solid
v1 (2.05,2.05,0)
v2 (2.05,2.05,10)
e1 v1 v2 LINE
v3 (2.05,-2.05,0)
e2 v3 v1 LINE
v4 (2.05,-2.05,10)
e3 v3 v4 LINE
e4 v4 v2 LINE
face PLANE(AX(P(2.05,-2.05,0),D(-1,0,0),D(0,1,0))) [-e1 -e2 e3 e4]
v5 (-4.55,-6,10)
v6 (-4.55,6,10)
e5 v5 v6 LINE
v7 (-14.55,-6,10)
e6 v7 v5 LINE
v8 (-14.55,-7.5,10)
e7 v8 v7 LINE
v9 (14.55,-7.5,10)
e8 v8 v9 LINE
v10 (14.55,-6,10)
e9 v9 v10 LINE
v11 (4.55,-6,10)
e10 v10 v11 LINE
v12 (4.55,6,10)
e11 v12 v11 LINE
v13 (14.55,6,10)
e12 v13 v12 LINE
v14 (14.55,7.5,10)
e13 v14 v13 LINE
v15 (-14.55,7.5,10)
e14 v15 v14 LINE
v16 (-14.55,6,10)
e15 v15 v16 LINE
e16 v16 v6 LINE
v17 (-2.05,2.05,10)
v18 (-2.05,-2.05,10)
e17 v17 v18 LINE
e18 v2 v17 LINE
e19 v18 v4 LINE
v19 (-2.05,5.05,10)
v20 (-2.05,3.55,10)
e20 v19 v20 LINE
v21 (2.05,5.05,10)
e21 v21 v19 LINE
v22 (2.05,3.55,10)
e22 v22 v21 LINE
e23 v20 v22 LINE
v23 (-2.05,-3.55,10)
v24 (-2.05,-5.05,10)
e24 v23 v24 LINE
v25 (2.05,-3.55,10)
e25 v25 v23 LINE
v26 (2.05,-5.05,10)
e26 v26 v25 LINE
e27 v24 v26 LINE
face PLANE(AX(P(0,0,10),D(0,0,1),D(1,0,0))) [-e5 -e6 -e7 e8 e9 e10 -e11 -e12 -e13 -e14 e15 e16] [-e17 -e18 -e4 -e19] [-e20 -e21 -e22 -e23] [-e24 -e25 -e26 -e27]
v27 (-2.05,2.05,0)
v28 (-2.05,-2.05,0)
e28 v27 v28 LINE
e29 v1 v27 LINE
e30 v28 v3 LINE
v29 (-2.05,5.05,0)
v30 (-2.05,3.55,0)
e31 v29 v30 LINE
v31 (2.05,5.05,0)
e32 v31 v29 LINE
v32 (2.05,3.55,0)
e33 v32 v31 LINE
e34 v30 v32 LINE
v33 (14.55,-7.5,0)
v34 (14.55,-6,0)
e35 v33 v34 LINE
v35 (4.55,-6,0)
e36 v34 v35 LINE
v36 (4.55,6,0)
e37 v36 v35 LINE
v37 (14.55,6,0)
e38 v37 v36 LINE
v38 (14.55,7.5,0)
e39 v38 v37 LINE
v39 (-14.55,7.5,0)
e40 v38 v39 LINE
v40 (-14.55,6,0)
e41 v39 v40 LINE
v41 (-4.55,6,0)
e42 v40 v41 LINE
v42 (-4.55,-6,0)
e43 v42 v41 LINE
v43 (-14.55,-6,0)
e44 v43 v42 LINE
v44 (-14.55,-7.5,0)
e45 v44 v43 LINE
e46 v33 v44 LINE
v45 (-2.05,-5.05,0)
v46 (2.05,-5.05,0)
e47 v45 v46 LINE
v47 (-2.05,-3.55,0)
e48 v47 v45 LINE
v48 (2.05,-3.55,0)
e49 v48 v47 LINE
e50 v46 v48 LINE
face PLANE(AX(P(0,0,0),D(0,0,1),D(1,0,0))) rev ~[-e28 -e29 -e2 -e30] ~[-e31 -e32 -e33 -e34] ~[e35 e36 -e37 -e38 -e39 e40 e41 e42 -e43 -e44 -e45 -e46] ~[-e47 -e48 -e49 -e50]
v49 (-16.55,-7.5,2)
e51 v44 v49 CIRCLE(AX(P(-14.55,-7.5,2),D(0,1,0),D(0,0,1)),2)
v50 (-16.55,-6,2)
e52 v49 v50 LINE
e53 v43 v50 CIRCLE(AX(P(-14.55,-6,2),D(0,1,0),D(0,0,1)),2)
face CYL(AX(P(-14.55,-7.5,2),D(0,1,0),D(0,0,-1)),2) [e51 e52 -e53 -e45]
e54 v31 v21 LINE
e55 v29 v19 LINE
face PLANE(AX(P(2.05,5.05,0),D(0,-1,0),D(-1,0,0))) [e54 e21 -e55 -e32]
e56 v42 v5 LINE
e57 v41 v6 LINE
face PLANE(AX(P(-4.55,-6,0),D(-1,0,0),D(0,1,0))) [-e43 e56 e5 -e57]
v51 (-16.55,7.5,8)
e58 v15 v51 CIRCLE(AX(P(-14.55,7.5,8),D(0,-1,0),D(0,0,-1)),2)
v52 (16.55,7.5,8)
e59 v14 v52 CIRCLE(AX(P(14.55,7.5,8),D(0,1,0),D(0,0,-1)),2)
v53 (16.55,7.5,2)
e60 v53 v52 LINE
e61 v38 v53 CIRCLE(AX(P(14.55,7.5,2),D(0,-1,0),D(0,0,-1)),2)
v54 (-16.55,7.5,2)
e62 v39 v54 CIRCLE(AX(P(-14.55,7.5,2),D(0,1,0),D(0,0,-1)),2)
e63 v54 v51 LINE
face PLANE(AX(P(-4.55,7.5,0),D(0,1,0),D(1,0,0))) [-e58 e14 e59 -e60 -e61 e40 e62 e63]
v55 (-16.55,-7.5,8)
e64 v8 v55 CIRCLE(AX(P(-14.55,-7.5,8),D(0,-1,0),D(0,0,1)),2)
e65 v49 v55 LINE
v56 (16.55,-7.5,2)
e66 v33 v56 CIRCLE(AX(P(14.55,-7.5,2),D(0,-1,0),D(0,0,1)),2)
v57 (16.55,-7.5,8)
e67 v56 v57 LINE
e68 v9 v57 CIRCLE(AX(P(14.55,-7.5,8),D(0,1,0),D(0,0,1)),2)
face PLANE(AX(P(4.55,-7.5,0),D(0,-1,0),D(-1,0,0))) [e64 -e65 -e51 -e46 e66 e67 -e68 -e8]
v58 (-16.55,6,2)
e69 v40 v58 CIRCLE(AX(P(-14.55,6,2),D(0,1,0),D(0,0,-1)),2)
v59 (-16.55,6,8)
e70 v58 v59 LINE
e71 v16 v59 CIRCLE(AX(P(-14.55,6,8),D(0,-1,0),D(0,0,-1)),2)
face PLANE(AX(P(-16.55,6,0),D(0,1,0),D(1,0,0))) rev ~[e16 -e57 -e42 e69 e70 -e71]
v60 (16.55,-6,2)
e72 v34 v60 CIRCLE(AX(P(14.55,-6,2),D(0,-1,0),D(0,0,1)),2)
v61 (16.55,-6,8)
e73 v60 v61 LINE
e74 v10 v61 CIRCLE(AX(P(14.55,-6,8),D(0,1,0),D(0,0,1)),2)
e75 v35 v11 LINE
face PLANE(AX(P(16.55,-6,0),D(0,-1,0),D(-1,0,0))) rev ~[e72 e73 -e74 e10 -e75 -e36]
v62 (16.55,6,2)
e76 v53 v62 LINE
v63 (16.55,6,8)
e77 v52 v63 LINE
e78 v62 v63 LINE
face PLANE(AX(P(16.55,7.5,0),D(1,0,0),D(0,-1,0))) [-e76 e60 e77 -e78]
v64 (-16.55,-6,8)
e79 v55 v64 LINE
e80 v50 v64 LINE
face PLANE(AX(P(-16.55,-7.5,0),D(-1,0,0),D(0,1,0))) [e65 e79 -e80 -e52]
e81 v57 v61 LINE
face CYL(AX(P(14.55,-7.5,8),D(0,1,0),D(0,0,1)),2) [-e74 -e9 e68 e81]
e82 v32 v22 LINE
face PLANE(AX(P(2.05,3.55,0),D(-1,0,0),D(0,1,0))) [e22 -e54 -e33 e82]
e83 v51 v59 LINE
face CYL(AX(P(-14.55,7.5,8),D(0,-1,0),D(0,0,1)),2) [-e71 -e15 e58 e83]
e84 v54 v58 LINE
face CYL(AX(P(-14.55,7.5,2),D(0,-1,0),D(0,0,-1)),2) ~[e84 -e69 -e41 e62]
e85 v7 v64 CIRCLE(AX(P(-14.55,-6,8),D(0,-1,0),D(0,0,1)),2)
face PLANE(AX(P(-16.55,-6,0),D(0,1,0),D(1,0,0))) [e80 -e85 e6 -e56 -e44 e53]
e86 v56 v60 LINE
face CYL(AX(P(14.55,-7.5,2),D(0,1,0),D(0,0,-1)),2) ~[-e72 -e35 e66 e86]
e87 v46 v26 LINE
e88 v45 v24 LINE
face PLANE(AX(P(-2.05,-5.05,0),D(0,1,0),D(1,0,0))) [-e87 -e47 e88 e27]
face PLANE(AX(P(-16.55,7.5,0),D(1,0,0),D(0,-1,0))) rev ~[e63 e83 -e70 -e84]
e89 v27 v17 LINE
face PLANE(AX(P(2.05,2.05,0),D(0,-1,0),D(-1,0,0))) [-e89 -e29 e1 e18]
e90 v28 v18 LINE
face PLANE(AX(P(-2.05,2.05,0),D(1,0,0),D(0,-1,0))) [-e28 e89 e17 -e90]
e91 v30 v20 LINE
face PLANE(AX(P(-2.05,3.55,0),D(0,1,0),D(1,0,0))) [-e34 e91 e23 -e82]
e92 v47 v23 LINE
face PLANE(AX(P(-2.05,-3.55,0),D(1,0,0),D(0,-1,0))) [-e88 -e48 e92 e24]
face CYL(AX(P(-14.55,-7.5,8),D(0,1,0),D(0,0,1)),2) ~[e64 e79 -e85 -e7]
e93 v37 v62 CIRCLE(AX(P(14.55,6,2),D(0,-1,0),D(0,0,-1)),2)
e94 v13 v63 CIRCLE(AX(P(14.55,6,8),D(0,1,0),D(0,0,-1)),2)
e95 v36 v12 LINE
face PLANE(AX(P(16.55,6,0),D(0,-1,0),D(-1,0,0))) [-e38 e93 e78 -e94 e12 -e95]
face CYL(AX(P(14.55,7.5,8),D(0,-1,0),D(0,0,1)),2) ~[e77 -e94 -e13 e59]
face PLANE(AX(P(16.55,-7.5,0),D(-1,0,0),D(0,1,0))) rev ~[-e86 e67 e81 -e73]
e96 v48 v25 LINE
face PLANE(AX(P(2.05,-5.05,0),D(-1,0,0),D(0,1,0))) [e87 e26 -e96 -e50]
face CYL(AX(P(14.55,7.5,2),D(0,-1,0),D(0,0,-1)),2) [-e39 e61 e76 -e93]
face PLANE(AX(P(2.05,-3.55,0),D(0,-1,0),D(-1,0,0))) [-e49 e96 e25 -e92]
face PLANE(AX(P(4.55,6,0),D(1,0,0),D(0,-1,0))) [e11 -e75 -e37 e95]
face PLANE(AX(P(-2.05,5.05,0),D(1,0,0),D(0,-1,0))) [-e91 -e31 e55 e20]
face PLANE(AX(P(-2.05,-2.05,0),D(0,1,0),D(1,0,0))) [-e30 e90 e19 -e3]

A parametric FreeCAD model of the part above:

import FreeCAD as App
import Part
import Sketcher

V = App.Vector


def edges_at(feature, points):
    """Names of the edges that pass closest to the given points."""
    edges = feature.Shape.Edges
    near = lambda p: min(range(len(edges)), key=lambda i: edges[i].distToShape(Part.Vertex(*p))[0])
    return sorted({f"Edge{near(p) + 1}" for p in points})


def add_polygon(sketch, points):
    """Adds a closed chain of lines whose ends are joined by coincident constraints."""
    first, n = sketch.GeometryCount, len(points)
    for a, b in zip(points, points[1:] + points[:1]):
        sketch.addGeometry(Part.LineSegment(App.Vector(*a, 0), App.Vector(*b, 0)), False)
    for i in range(n):
        sketch.addConstraint(Sketcher.Constraint("Coincident", first + i, 2, first + (i + 1) % n, 1))

doc = App.newDocument("Part")
body = doc.addObject("PartDesign::Body", "Body")

# Sketch on XY plane
sketch1 = body.newObject("Sketcher::SketchObject", "Sketch")
sketch1.AttachmentSupport = (doc.getObject("XY_Plane"), [""])
sketch1.MapMode = "FlatFace"
add_polygon(sketch1, [(-16.6, 7.5), (-16.6, 6), (-4.5, 6), (-4.5, -6), (-16.6, -6), (-16.6, -7.5), (16.6, -7.5), (16.6, -6), (4.5, -6), (4.5, 6), (16.6, 6), (16.6, 7.5)])  # lines 0-11
add_polygon(sketch1, [(2, -2), (-2, -2), (-2, 2), (2, 2)])  # lines 12-15
sketch1.addConstraint(Sketcher.Constraint("Vertical", 0))
sketch1.addConstraint(Sketcher.Constraint("Horizontal", 1))
sketch1.addConstraint(Sketcher.Constraint("Vertical", 2))
sketch1.addConstraint(Sketcher.Constraint("Horizontal", 3))
sketch1.addConstraint(Sketcher.Constraint("Vertical", 4))
sketch1.addConstraint(Sketcher.Constraint("Horizontal", 5))
sketch1.addConstraint(Sketcher.Constraint("Vertical", 6))
sketch1.addConstraint(Sketcher.Constraint("Horizontal", 7))
sketch1.addConstraint(Sketcher.Constraint("Vertical", 8))
sketch1.addConstraint(Sketcher.Constraint("Horizontal", 9))
sketch1.addConstraint(Sketcher.Constraint("Vertical", 10))
sketch1.addConstraint(Sketcher.Constraint("Horizontal", 11))
sketch1.addConstraint(Sketcher.Constraint("Horizontal", 12))
sketch1.addConstraint(Sketcher.Constraint("Vertical", 13))
sketch1.addConstraint(Sketcher.Constraint("Horizontal", 14))
sketch1.addConstraint(Sketcher.Constraint("Vertical", 15))
sketch1.addConstraint(Sketcher.Constraint("Symmetric", 0, 2, 6, 2, -1, 1))
sketch1.addConstraint(Sketcher.Constraint("Symmetric", 2, 2, 8, 2, -1, 1))
sketch1.addConstraint(Sketcher.Constraint("Symmetric", 4, 2, 10, 2, -1, 1))
sketch1.addConstraint(Sketcher.Constraint("Symmetric", 12, 2, 14, 2, -1, 1))
sketch1.addConstraint(Sketcher.Constraint("Symmetric", 3, 2, 6, 2, -2))
sketch1.addConstraint(Sketcher.Constraint("Equal", 9, 2))
sketch1.addConstraint(Sketcher.Constraint("Equal", 14, 13))
sketch1.addConstraint(Sketcher.Constraint("DistanceX", 1, 1, 1, 2, 12.0))
sketch1.addConstraint(Sketcher.Constraint("DistanceX", 12, 2, 12, 1, 4.1))
sketch1.addConstraint(Sketcher.Constraint("DistanceY", 0, 2, 0, 1, 1.5))
sketch1.addConstraint(Sketcher.Constraint("DistanceX", 2, 2, 7, 2, 9.1))
pad1 = body.newObject("PartDesign::Pad", "Pad")
pad1.Profile = sketch1
pad1.Length = 10
doc.recompute()

fillet = body.newObject("PartDesign::Fillet", "Fillet")
fillet.Base = (pad1, edges_at(pad1, [
    (-16.55, 6.75, 10),
    (-16.55, -6.75, 10),
    (16.55, -6.75, 10),
    (16.55, 6.75, 10),
    (16.55, 6.75, 0),
    (-16.55, 6.75, 0),
    (-16.55, -6.75, 0),
    (16.55, -6.75, 0),
]))
fillet.Radius = 2

# Sketch on XY plane
sketch2 = body.newObject("Sketcher::SketchObject", "Sketch001")
sketch2.AttachmentSupport = (doc.getObject("XY_Plane"), [""])
sketch2.MapMode = "FlatFace"
add_polygon(sketch2, [(-2, 5), (2, 5), (2, 3.5), (-2, 3.5)])  # lines 0-3
add_polygon(sketch2, [(-2, -3.5), (2, -3.5), (2, -5), (-2, -5)])  # lines 4-7
sketch2.addConstraint(Sketcher.Constraint("Horizontal", 0))
sketch2.addConstraint(Sketcher.Constraint("Vertical", 1))
sketch2.addConstraint(Sketcher.Constraint("Horizontal", 2))
sketch2.addConstraint(Sketcher.Constraint("Vertical", 3))
sketch2.addConstraint(Sketcher.Constraint("Horizontal", 4))
sketch2.addConstraint(Sketcher.Constraint("Vertical", 5))
sketch2.addConstraint(Sketcher.Constraint("Horizontal", 6))
sketch2.addConstraint(Sketcher.Constraint("Vertical", 7))
sketch2.addConstraint(Sketcher.Constraint("Symmetric", 2, 2, 4, 2, -1, 1))
sketch2.addConstraint(Sketcher.Constraint("Symmetric", 0, 2, 6, 2, -1, 1))
sketch2.addConstraint(Sketcher.Constraint("Vertical", 1, 2, 4, 2))
sketch2.addConstraint(Sketcher.Constraint("DistanceY", 1, 2, 1, 1, 1.5))
sketch2.addConstraint(Sketcher.Constraint("DistanceX", 0, 1, 0, 2, 4.1))
sketch2.addConstraint(Sketcher.Constraint("DistanceY", 4, 2, 1, 2, 7.1))
pocket1 = body.newObject("PartDesign::Pocket", "Pocket")
pocket1.Profile = sketch2
pocket1.Length = 10
pocket1.Reversed = True

doc.recompute()
